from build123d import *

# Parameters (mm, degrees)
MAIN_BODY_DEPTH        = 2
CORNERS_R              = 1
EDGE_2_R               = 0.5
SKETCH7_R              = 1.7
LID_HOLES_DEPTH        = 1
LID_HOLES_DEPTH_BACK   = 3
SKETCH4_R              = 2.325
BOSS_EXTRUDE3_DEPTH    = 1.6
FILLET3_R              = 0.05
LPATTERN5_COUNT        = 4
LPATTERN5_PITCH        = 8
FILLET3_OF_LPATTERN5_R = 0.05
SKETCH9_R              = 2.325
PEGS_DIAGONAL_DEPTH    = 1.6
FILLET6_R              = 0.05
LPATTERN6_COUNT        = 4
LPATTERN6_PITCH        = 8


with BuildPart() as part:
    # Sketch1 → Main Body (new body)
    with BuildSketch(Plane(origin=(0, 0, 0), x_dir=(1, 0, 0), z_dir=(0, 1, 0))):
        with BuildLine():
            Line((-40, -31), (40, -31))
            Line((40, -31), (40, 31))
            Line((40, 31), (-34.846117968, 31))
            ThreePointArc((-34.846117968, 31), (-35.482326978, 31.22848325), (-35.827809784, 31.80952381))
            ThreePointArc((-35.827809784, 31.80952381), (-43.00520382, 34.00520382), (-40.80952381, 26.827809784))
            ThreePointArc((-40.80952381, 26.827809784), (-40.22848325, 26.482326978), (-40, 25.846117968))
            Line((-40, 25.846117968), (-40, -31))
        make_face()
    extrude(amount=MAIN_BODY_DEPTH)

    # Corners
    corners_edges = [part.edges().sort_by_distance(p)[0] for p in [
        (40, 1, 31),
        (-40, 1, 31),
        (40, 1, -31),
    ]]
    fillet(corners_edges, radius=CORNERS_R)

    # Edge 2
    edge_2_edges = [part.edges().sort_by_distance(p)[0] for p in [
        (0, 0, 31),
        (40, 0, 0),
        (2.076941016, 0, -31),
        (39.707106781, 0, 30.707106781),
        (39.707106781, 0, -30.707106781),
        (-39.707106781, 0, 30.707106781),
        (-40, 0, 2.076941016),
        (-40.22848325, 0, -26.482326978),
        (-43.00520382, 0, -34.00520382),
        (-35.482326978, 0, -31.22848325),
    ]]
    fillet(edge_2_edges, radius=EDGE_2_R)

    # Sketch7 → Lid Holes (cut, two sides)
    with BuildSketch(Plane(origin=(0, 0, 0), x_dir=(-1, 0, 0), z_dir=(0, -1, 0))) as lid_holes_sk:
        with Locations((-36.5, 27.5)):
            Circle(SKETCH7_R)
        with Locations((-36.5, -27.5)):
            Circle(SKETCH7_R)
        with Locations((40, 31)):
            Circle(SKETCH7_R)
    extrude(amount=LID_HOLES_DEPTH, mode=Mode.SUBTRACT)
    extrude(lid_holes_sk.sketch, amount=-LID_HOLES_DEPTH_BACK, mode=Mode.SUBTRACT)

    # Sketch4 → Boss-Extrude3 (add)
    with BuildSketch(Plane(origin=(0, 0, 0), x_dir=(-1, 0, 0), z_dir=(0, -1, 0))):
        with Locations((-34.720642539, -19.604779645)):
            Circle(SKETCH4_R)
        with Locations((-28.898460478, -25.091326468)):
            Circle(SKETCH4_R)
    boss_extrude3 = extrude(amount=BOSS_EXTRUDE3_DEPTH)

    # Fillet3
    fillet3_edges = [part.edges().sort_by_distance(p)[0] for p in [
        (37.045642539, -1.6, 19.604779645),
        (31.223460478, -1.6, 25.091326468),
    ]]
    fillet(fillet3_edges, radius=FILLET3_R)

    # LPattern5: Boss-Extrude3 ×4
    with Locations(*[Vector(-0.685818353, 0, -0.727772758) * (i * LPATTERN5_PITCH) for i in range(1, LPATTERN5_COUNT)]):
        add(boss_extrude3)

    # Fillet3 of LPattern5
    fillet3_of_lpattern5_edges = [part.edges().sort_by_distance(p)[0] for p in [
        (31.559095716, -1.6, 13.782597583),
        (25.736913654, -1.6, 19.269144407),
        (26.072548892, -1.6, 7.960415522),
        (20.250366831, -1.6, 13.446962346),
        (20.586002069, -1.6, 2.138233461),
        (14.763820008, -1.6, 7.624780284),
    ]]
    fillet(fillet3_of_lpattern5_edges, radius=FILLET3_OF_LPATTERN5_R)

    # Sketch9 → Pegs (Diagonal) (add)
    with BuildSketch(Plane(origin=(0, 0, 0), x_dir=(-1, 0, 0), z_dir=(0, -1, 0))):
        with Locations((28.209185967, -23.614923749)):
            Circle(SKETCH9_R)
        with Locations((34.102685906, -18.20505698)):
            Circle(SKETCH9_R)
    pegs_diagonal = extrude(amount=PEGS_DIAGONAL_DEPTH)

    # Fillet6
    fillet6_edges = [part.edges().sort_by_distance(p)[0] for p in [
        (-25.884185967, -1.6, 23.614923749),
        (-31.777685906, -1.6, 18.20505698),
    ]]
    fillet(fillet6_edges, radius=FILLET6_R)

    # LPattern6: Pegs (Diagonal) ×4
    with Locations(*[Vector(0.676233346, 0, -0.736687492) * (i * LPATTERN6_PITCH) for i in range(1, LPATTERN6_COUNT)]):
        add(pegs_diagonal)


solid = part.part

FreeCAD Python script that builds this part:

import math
import FreeCAD as App
import Part
import Sketcher
from FreeCAD import Vector
Q = App.Units.Quantity


def edges_at(feature, points):
    """Names of the edges that pass closest to the given points."""
    edges = feature.Shape.Edges
    near = lambda p: min(range(len(edges)), key=lambda i: edges[i].distToShape(Part.Vertex(*p))[0])
    return sorted({f"Edge{near(p) + 1}" for p in points})

doc = App.newDocument("Part")
params = doc.addObject("Spreadsheet::Sheet", "Params")
for row, (alias, value) in enumerate([
    ("sketch1_radius", "1 mm"),
    ("sketch1_width", "80 mm"),
    ("sketch1_height", "62 mm"),
    ("sketch1_radius2", "4.25 mm"),
    ("pad1_length", "2 mm"),
    ("fillet_radius", "1 mm"),
    ("fillet2_radius", "0.5 mm"),
    ("sketch2_diameter", "3.4 mm"),
    ("sketch3_diameter", "4.65 mm"),
    ("pad2_length", "1.6 mm"),
    ("fillet3_radius", "0.05 mm"),
    ("linearpattern_pitch", "8 mm"),
    ("fillet4_radius", "0.05 mm"),
    ("sketch4_diameter", "4.65 mm"),
    ("pad3_length", "1.6 mm"),
    ("fillet5_radius", "0.05 mm"),
    ("linearpattern2_pitch", "8 mm"),
], start=1):
    params.set(f"A{row}", alias)
    params.set(f"B{row}", "=" + value)
    params.setAlias(f"B{row}", alias)

body = doc.addObject("PartDesign::Body", "Body")

# Sketch on XZ plane
sketch1 = body.newObject("Sketcher::SketchObject", "Sketch")
sketch1.AttachmentSupport = (doc.getObject("XZ_Plane"), [""])
sketch1.MapMode = "FlatFace"
sketch1.addGeometry(Part.LineSegment(Vector(-40, 31, 0), Vector(40, 31, 0)), False)
sketch1.addGeometry(Part.LineSegment(Vector(40, 31, 0), Vector(40, -31, 0)), False)
sketch1.addGeometry(Part.LineSegment(Vector(40, -31, 0), Vector(-34.846118, -31, 0)), False)
sketch1.addGeometry(Part.ArcOfCircle(Part.Circle(Vector(-34.846118, -32, 0), Vector(0, 0, 1), 1), math.radians(90), math.radians(169.019425)), False)
sketch1.addGeometry(Part.ArcOfCircle(Part.Circle(Vector(-40, -31, 0), Vector(0, 0, 1), 4.25), math.radians(100.980575), math.radians(349.019425)), False)
sketch1.addGeometry(Part.ArcOfCircle(Part.Circle(Vector(-41, -25.846118, 0), Vector(0, 0, 1), 1), math.radians(-79.019425), math.radians(0)), False)
sketch1.addGeometry(Part.LineSegment(Vector(-40, -25.846118, 0), Vector(-40, 31, 0)), False)
sketch1.addConstraint(Sketcher.Constraint("Coincident", 0, 2, 1, 1))
sketch1.addConstraint(Sketcher.Constraint("Coincident", 1, 2, 2, 1))
sketch1.addConstraint(Sketcher.Constraint("Tangent", 2, 2, 3, 1))
sketch1.addConstraint(Sketcher.Constraint("Tangent", 3, 2, 4, 2))
sketch1.addConstraint(Sketcher.Constraint("Tangent", 4, 1, 5, 1))
sketch1.addConstraint(Sketcher.Constraint("Tangent", 5, 2, 6, 1))
sketch1.addConstraint(Sketcher.Constraint("Coincident", 6, 2, 0, 1))
sketch1.addConstraint(Sketcher.Constraint("Horizontal", 0))
sketch1.addConstraint(Sketcher.Constraint("Vertical", 1))
sketch1.addConstraint(Sketcher.Constraint("Horizontal", 2))
sketch1.addConstraint(Sketcher.Constraint("Vertical", 6))
sketch1.addConstraint(Sketcher.Constraint("Equal", 3, 5))
sketch1.addConstraint(Sketcher.Constraint("Symmetric", 1, 2, 6, 2, -1, 1))
sketch1.addConstraint(Sketcher.Constraint("Horizontal", 4, 3, 1, 2))
sketch1.addConstraint(Sketcher.Constraint("Vertical", 4, 3, 5, 2))
sketch1.addConstraint(Sketcher.Constraint("Radius", 3, Q("1 mm")))
sketch1.addConstraint(Sketcher.Constraint("DistanceX", 0, 1, 0, 2, Q("80 mm")))
sketch1.addConstraint(Sketcher.Constraint("DistanceY", 1, 2, 1, 1, Q("62 mm")))
sketch1.addConstraint(Sketcher.Constraint("Radius", 4, Q("4.25 mm")))
sketch1.setExpression("Constraints[15]", "Params.sketch1_radius")
sketch1.setExpression("Constraints[16]", "Params.sketch1_width")
sketch1.setExpression("Constraints[17]", "Params.sketch1_height")
sketch1.setExpression("Constraints[18]", "Params.sketch1_radius2")
pad1 = body.newObject("PartDesign::Pad", "Pad")
pad1.Profile = sketch1
pad1.setExpression("Length", "Params.pad1_length")
pad1.Reversed = True
doc.recompute()

fillet = body.newObject("PartDesign::Fillet", "Fillet")
fillet.Base = (pad1, edges_at(pad1, [(40, 1, 31), (-40, 1, 31), (40, 1, -31)]))
fillet.setExpression("Radius", "Params.fillet_radius")
doc.recompute()

fillet2 = body.newObject("PartDesign::Fillet", "Fillet001")
fillet2.Base = (fillet, edges_at(fillet, [
    (0, 0, 31),
    (40, 0, 0),
    (2.077, 0, -31),
    (39.707, 0, 30.707),
    (39.707, 0, -30.707),
    (-39.707, 0, 30.707),
    (-40, 0, 2.077),
    (-40.228, 0, -26.482),
    (-43.005, 0, -34.005),
    (-35.482, 0, -31.228),
]))
fillet2.setExpression("Radius", "Params.fillet2_radius")

# Sketch on XZ plane
sketch2 = body.newObject("Sketcher::SketchObject", "Sketch001")
sketch2.AttachmentSupport = (doc.getObject("XZ_Plane"), [""])
sketch2.MapMode = "FlatFace"
sketch2.addGeometry(Part.Circle(Vector(36.5, -27.5, 0), Vector(0, 0, 1), 1.7), False)
sketch2.addGeometry(Part.Circle(Vector(36.5, 27.5, 0), Vector(0, 0, 1), 1.7), False)
sketch2.addGeometry(Part.Circle(Vector(-40, -31, 0), Vector(0, 0, 1), 1.7), False)
sketch2.addConstraint(Sketcher.Constraint("Equal", 0, 1))
sketch2.addConstraint(Sketcher.Constraint("Equal", 1, 2))
sketch2.addConstraint(Sketcher.Constraint("Symmetric", 0, 3, 1, 3, -1))
sketch2.addConstraint(Sketcher.Constraint("Diameter", 0, Q("3.4 mm")))
sketch2.addConstraint(Sketcher.Constraint("DistanceX", 2, 3, -1, 1, Q("40 mm")))
sketch2.addConstraint(Sketcher.Constraint("DistanceY", 2, 3, -1, 1, Q("31 mm")))
sketch2.addConstraint(Sketcher.Constraint("DistanceY", 0, 3, 1, 3, Q("55 mm")))
sketch2.addConstraint(Sketcher.Constraint("DistanceX", -1, 1, 0, 3, Q("36.5 mm")))
sketch2.setExpression("Constraints[3]", "Params.sketch2_diameter")
pocket1 = body.newObject("PartDesign::Pocket", "Pocket")
pocket1.Profile = sketch2
pocket1.Type = "ThroughAll"
pocket1.Midplane = True

# Sketch on XZ plane
sketch3 = body.newObject("Sketcher::SketchObject", "Sketch002")
sketch3.AttachmentSupport = (doc.getObject("XZ_Plane"), [""])
sketch3.MapMode = "FlatFace"
sketch3.addGeometry(Part.Circle(Vector(34.720643, 19.60478, 0), Vector(0, 0, 1), 2.325), False)
sketch3.addGeometry(Part.Circle(Vector(28.89846, 25.091326, 0), Vector(0, 0, 1), 2.325), False)
sketch3.addConstraint(Sketcher.Constraint("Equal", 0, 1))
sketch3.addConstraint(Sketcher.Constraint("Diameter", 0, Q("4.65 mm")))
sketch3.addConstraint(Sketcher.Constraint("DistanceY", -1, 1, 0, 3, Q("19.60478 mm")))
sketch3.addConstraint(Sketcher.Constraint("DistanceX", -1, 1, 1, 3, Q("28.89846 mm")))
sketch3.addConstraint(Sketcher.Constraint("DistanceX", -1, 1, 0, 3, Q("34.720643 mm")))
sketch3.addConstraint(Sketcher.Constraint("DistanceY", -1, 1, 1, 3, Q("25.091326 mm")))
sketch3.setExpression("Constraints[1]", "Params.sketch3_diameter")
pad2 = body.newObject("PartDesign::Pad", "Pad001")
pad2.Profile = sketch3
pad2.setExpression("Length", "Params.pad2_length")
doc.recompute()

fillet3 = body.newObject("PartDesign::Fillet", "Fillet002")
fillet3.Base = (pad2, edges_at(pad2, [(37.046, -1.6, 19.605), (31.223, -1.6, 25.091)]))
fillet3.setExpression("Radius", "Params.fillet3_radius")
doc.recompute()

datumline = body.newObject("PartDesign::Line", "DatumLine")
datumline.Placement = App.Placement(Vector(0, 0, 0), App.Rotation(Vector(0, 0, 1), Vector(-0.685818353, 0, -0.727772758)))
linearpattern = body.newObject("PartDesign::LinearPattern", "LinearPattern")
linearpattern.Originals = [pad2]
linearpattern.Direction = (datumline, [""])
linearpattern.Mode = "offset"
linearpattern.setExpression("Offset", "Params.linearpattern_pitch")
linearpattern.Occurrences = 4
body.Tip = linearpattern
doc.recompute()

fillet4 = body.newObject("PartDesign::Fillet", "Fillet003")
fillet4.Base = (linearpattern, edges_at(linearpattern, [
    (31.559, -1.6, 13.783),
    (25.737, -1.6, 19.269),
    (26.073, -1.6, 7.96),
    (20.25, -1.6, 13.447),
    (20.586, -1.6, 2.138),
    (14.764, -1.6, 7.625),
]))
fillet4.setExpression("Radius", "Params.fillet4_radius")

# Sketch on XZ plane
sketch4 = body.newObject("Sketcher::SketchObject", "Sketch003")
sketch4.AttachmentSupport = (doc.getObject("XZ_Plane"), [""])
sketch4.MapMode = "FlatFace"
sketch4.addGeometry(Part.Circle(Vector(-28.209186, 23.614924, 0), Vector(0, 0, 1), 2.325), False)
sketch4.addGeometry(Part.Circle(Vector(-34.102686, 18.205057, 0), Vector(0, 0, 1), 2.325), False)
sketch4.addConstraint(Sketcher.Constraint("Equal", 0, 1))
sketch4.addConstraint(Sketcher.Constraint("Diameter", 0, Q("4.65 mm")))
sketch4.addConstraint(Sketcher.Constraint("DistanceX", 1, 3, 0, 3, Q("5.8935 mm")))
sketch4.addConstraint(Sketcher.Constraint("DistanceX", 0, 3, -1, 1, Q("28.209186 mm")))
sketch4.addConstraint(Sketcher.Constraint("DistanceY", -1, 1, 0, 3, Q("23.614924 mm")))
sketch4.addConstraint(Sketcher.Constraint("DistanceY", -1, 1, 1, 3, Q("18.205057 mm")))
sketch4.setExpression("Constraints[1]", "Params.sketch4_diameter")
pad3 = body.newObject("PartDesign::Pad", "Pad002")
pad3.Profile = sketch4
pad3.setExpression("Length", "Params.pad3_length")
doc.recompute()

fillet5 = body.newObject("PartDesign::Fillet", "Fillet004")
fillet5.Base = (pad3, edges_at(pad3, [(-25.884, -1.6, 23.615), (-31.778, -1.6, 18.205)]))
fillet5.setExpression("Radius", "Params.fillet5_radius")
doc.recompute()

datumline2 = body.newObject("PartDesign::Line", "DatumLine001")
datumline2.Placement = App.Placement(Vector(0, 0, 0), App.Rotation(Vector(0, 0, 1), Vector(0.676233346, 0, -0.736687492)))
linearpattern2 = body.newObject("PartDesign::LinearPattern", "LinearPattern001")
linearpattern2.Originals = [pad3]
linearpattern2.Direction = (datumline2, [""])
linearpattern2.Mode = "offset"
linearpattern2.setExpression("Offset", "Params.linearpattern2_pitch")
linearpattern2.Occurrences = 4
body.Tip = linearpattern2

doc.recompute()
